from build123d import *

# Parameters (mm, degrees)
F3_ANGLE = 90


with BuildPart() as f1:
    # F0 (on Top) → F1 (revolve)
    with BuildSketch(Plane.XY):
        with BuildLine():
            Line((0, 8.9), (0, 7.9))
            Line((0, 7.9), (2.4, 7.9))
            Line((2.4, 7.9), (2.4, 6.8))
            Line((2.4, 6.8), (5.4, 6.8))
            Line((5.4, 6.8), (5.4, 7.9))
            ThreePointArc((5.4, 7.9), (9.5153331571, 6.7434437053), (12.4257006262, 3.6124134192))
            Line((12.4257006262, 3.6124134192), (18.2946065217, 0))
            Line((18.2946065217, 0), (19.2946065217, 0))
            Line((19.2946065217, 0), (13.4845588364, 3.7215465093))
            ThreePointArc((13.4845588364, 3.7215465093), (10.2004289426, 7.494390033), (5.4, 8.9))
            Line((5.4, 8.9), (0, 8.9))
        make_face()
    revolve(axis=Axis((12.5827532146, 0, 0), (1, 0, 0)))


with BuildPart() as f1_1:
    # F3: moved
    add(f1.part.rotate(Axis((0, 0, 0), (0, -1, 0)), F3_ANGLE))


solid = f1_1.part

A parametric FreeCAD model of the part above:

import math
import FreeCAD as App
import Part
import Sketcher

V = App.Vector
Q = App.Units.Quantity

doc = App.newDocument("Part")
body = doc.addObject("PartDesign::Body", "Body")

sketch1 = body.newObject("Sketcher::SketchObject", "Sketch")
sketch1.AttachmentSupport = (doc.getObject("XY_Plane"), [""])
sketch1.MapMode = "FlatFace"
sketch1.addGeometry(Part.LineSegment(V(0, 8.9, 0), V(0, 7.9, 0)), False)
sketch1.addGeometry(Part.LineSegment(V(0, 7.9, 0), V(2.4, 7.9, 0)), False)
sketch1.addGeometry(Part.LineSegment(V(2.4, 7.9, 0), V(2.4, 6.8, 0)), False)
sketch1.addGeometry(Part.LineSegment(V(2.4, 6.8, 0), V(5.4, 6.8, 0)), False)
sketch1.addGeometry(Part.LineSegment(V(5.4, 6.8, 0), V(5.4, 7.9, 0)), False)
sketch1.addGeometry(Part.ArcOfCircle(Part.Circle(V(5.4, 0, 0), V(0, 0, 1), 7.9), math.radians(27), math.radians(90)), False)
sketch1.addGeometry(Part.LineSegment(V(12.4, 3.6, 0), V(18.3, 0, 0)), False)
sketch1.addGeometry(Part.LineSegment(V(18.3, 0, 0), V(19.3, 0, 0)), False)
sketch1.addGeometry(Part.LineSegment(V(19.3, 0, 0), V(13.5, 3.7, 0)), False)
sketch1.addGeometry(Part.ArcOfCircle(Part.Circle(V(5.4, 0, 0), V(0, 0, 1), 8.9), math.radians(25), math.radians(90)), False)
sketch1.addGeometry(Part.LineSegment(V(5.4, 8.9, 0), V(0, 8.9, 0)), False)
sketch1.addConstraint(Sketcher.Constraint("Coincident", 0, 2, 1, 1))
sketch1.addConstraint(Sketcher.Constraint("Coincident", 1, 2, 2, 1))
sketch1.addConstraint(Sketcher.Constraint("Coincident", 2, 2, 3, 1))
sketch1.addConstraint(Sketcher.Constraint("Coincident", 3, 2, 4, 1))
sketch1.addConstraint(Sketcher.Constraint("Coincident", 4, 2, 5, 2))
sketch1.addConstraint(Sketcher.Constraint("Coincident", 5, 1, 6, 1))
sketch1.addConstraint(Sketcher.Constraint("Coincident", 6, 2, 7, 1))
sketch1.addConstraint(Sketcher.Constraint("Coincident", 7, 2, 8, 1))
sketch1.addConstraint(Sketcher.Constraint("Coincident", 8, 2, 9, 1))
sketch1.addConstraint(Sketcher.Constraint("Tangent", 9, 2, 10, 1))
sketch1.addConstraint(Sketcher.Constraint("Coincident", 10, 2, 0, 1))
sketch1.addConstraint(Sketcher.Constraint("Vertical", 0))
sketch1.addConstraint(Sketcher.Constraint("Horizontal", 1))
sketch1.addConstraint(Sketcher.Constraint("Vertical", 2))
sketch1.addConstraint(Sketcher.Constraint("Horizontal", 3))
sketch1.addConstraint(Sketcher.Constraint("Vertical", 4))
sketch1.addConstraint(Sketcher.Constraint("Horizontal", 7))
sketch1.addConstraint(Sketcher.Constraint("Horizontal", 10))
sketch1.addConstraint(Sketcher.Constraint("Coincident", 9, 3, 5, 3))
sketch1.addConstraint(Sketcher.Constraint("PointOnObject", 5, 3, -1))
sketch1.addConstraint(Sketcher.Constraint("PointOnObject", 0, 2, -2))
sketch1.addConstraint(Sketcher.Constraint("PointOnObject", 6, 2, -1))
sketch1.addConstraint(Sketcher.Constraint("Horizontal", 1, 2, 4, 2))
sketch1.addConstraint(Sketcher.Constraint("Vertical", 9, 3, 3, 2))
sketch1.addConstraint(Sketcher.Constraint("Equal", 7, 0))
sketch1.addConstraint(Sketcher.Constraint("Radius", 5, Q("7.9 mm")))
sketch1.addConstraint(Sketcher.Constraint("Radius", 9, Q("8.9 mm")))
sketch1.addConstraint(Sketcher.Constraint("DistanceX", 3, 1, 3, 2, Q("3 mm")))
sketch1.addConstraint(Sketcher.Constraint("DistanceX", 1, 1, 1, 2, Q("2.4 mm")))
sketch1.addConstraint(Sketcher.Constraint("DistanceY", 2, 2, 2, 1, Q("1.1 mm")))
sketch1.addConstraint(Sketcher.Constraint("DistanceX", -1, 1, 5, 1, Q("12.425701 mm")))
sketch1.addConstraint(Sketcher.Constraint("Distance", 6, Q("6.891559 mm")))
sketch1.addConstraint(Sketcher.Constraint("Distance", 8, Q("6.899751 mm")))
revolution = body.newObject("PartDesign::Revolution", "Revolution")
revolution.Profile = sketch1
revolution.ReferenceAxis = (sketch1, ["H_Axis"])
revolution.Angle = 360
body2 = doc.addObject("PartDesign::Body", "Body001")
doc.recompute()

body.Placement = App.Placement(V(0, 0, 0), App.Rotation(V(0, -1, 0), 90))
boolean = body2.newObject("PartDesign::Boolean", "Boolean")
boolean.Type = "Fuse"
boolean.addObjects([body])

doc.recompute()
